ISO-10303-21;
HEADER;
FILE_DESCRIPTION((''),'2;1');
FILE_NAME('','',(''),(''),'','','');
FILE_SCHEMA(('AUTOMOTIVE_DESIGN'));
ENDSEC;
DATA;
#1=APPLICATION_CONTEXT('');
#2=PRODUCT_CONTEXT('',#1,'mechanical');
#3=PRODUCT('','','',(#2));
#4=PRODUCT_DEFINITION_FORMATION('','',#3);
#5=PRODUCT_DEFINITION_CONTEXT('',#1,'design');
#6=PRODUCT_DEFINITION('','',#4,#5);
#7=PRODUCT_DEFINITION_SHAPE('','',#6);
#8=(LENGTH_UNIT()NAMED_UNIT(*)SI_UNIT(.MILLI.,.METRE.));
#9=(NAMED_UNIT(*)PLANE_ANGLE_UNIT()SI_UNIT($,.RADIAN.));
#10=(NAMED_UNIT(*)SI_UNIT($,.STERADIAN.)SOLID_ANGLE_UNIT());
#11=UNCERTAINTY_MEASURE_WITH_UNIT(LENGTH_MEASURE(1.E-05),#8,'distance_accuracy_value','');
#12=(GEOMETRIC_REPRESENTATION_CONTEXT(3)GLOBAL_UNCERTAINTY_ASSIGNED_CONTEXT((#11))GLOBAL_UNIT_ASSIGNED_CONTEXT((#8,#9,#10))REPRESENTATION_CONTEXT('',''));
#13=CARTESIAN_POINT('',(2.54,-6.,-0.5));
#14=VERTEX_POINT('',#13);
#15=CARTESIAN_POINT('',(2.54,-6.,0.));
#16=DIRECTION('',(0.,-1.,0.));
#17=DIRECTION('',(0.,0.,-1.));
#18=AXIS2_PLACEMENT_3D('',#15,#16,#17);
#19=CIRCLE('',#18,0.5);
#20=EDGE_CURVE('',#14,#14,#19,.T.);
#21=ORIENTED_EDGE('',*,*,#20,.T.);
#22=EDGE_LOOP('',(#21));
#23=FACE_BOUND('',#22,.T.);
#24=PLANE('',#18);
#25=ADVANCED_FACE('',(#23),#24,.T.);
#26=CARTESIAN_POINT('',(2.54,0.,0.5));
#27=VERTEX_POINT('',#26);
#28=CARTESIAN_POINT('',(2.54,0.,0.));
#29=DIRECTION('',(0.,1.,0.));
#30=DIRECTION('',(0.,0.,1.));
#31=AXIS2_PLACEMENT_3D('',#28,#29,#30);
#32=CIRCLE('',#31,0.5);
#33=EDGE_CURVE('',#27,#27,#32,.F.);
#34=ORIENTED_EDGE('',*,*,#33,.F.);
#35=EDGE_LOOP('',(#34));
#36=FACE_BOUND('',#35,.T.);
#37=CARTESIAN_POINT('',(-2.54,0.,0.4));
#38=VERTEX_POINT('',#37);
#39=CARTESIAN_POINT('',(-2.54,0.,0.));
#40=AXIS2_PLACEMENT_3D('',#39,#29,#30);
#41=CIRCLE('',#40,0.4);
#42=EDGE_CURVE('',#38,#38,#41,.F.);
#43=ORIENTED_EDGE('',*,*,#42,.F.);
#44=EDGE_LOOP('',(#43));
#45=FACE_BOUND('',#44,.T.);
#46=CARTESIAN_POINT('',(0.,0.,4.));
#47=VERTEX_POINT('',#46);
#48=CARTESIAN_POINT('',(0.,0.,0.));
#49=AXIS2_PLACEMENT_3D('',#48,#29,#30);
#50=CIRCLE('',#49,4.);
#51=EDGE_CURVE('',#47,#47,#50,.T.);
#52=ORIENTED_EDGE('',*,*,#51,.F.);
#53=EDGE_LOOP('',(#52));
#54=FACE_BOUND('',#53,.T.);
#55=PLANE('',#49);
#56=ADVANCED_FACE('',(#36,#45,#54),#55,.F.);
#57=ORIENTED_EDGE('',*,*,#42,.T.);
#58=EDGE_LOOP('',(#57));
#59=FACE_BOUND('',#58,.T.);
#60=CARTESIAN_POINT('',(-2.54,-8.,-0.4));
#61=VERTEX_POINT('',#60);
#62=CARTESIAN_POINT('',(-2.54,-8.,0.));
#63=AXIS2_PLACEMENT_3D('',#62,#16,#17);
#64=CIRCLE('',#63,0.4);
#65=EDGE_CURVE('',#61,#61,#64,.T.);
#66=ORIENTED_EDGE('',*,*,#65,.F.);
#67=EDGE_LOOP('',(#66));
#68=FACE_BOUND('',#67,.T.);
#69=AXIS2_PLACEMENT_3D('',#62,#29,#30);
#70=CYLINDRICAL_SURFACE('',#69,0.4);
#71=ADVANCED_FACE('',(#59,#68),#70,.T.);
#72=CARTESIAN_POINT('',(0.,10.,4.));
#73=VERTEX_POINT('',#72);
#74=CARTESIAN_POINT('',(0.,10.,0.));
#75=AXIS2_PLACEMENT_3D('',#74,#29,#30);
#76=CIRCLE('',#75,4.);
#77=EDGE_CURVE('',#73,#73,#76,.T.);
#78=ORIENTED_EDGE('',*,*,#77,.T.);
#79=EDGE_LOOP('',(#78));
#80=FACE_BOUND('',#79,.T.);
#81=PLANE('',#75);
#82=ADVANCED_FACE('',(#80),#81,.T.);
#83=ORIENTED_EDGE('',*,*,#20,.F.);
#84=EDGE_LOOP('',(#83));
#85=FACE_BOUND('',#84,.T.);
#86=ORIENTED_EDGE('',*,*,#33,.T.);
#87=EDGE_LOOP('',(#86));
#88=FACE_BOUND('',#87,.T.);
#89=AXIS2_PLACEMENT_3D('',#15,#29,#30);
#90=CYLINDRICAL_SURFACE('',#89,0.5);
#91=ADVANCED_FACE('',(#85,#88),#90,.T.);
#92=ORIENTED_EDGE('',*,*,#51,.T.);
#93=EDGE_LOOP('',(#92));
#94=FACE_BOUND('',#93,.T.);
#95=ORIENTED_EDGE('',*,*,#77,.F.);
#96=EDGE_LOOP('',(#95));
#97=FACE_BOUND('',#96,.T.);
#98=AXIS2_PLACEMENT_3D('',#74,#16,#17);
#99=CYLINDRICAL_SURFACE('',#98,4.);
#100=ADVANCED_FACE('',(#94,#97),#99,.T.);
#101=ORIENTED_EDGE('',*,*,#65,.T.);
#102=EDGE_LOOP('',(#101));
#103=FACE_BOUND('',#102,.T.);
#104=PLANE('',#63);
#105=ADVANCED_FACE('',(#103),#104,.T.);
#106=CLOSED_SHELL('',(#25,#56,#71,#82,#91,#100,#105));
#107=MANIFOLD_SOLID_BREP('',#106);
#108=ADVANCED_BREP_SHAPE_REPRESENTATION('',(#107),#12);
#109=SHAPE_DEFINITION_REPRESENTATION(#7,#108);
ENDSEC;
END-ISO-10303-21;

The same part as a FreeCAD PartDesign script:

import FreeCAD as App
import Part
import Sketcher
Q = App.Units.Quantity

doc = App.newDocument("Part")
body = doc.addObject("PartDesign::Body", "Body")

# Sketch on XZ plane
sketch1 = doc.addObject("Sketcher::SketchObject", "Sketch")
body.addObject(sketch1)
sketch1.AttachmentSupport = (doc.XZ_Plane, [""])
sketch1.MapMode = "FlatFace"
sketch1.addGeometry(Part.Circle(App.Vector(0, 0, 0), App.Vector(0, 0, 1), 4), False)
sketch1.addConstraint([
    Sketcher.Constraint("Coincident", 0, 3, -1, 1),
    Sketcher.Constraint("Diameter", 0, Q("8 mm")),
])
pad1 = doc.addObject("PartDesign::Pad", "Pad")
body.addObject(pad1)
pad1.Profile = sketch1
pad1.Length = 10
pad1.Reversed = True

# Sketch on XZ plane
sketch2 = doc.addObject("Sketcher::SketchObject", "Sketch001")
body.addObject(sketch2)
sketch2.AttachmentSupport = (doc.XZ_Plane, [""])
sketch2.MapMode = "FlatFace"
sketch2.addGeometry(Part.Circle(App.Vector(-2.54, 0, 0), App.Vector(0, 0, 1), 0.4), False)
sketch2.addConstraint([
    Sketcher.Constraint("PointOnObject", 0, 3, -1),
    Sketcher.Constraint("Diameter", 0, Q("0.8 mm")),
    Sketcher.Constraint("DistanceX", 0, 3, -1, 1, Q("2.54 mm")),
])
pad2 = doc.addObject("PartDesign::Pad", "Pad001")
body.addObject(pad2)
pad2.Profile = sketch2
pad2.Length = 8

# Sketch on XZ plane
sketch3 = doc.addObject("Sketcher::SketchObject", "Sketch002")
body.addObject(sketch3)
sketch3.AttachmentSupport = (doc.XZ_Plane, [""])
sketch3.MapMode = "FlatFace"
sketch3.addGeometry(Part.Circle(App.Vector(2.5, 0, 0), App.Vector(0, 0, 1), 0.5), False)
sketch3.addConstraint([
    Sketcher.Constraint("PointOnObject", 0, 3, -1),
    Sketcher.Constraint("Diameter", 0, Q("1 mm")),
    Sketcher.Constraint("DistanceX", -1, 1, 0, 3, Q("2.54 mm")),
])
pad3 = doc.addObject("PartDesign::Pad", "Pad002")
body.addObject(pad3)
pad3.Profile = sketch3
pad3.Length = 6

doc.recompute()
